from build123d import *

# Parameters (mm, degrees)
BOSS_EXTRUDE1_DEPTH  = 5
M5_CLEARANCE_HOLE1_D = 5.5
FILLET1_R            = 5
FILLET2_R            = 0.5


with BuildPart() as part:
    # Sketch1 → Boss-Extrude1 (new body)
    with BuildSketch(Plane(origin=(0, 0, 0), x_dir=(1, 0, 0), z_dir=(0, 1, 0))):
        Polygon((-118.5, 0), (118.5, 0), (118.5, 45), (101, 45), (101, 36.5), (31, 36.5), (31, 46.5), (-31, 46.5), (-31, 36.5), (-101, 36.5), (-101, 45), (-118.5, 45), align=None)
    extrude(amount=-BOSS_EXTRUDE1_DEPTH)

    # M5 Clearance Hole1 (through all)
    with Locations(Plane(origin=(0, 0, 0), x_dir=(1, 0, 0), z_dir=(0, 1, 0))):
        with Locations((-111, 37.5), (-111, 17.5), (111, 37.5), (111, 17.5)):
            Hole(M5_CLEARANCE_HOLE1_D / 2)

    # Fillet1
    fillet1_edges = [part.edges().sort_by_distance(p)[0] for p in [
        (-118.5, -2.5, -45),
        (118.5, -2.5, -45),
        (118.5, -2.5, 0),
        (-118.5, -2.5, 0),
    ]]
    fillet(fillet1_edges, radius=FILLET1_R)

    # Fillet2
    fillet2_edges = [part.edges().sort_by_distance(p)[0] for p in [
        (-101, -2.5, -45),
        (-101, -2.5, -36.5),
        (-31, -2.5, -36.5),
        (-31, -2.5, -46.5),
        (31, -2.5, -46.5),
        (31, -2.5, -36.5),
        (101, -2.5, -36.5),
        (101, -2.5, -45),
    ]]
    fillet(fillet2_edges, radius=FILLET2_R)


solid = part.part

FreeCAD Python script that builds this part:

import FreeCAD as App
import Part
import Sketcher

V = App.Vector
Q = App.Units.Quantity


def edges_at(feature, points):
    """Names of the edges that pass closest to the given points."""
    edges = feature.Shape.Edges
    near = lambda p: min(range(len(edges)), key=lambda i: edges[i].distToShape(Part.Vertex(*p))[0])
    return sorted({f"Edge{near(p) + 1}" for p in points})

doc = App.newDocument("Part")
body = doc.addObject("PartDesign::Body", "Body")

# Sketch on XZ plane
sketch1 = doc.addObject("Sketcher::SketchObject", "Sketch")
body.addObject(sketch1)
sketch1.AttachmentSupport = (doc.XZ_Plane, [""])
sketch1.MapMode = "FlatFace"
sketch1.addGeometry([
    Part.LineSegment(V(-118, 0, 0), V(118, 0, 0)),  # 0
    Part.LineSegment(V(118, 0, 0), V(118, -45, 0)),  # 1
    Part.LineSegment(V(118, -45, 0), V(101, -45, 0)),  # 2
    Part.LineSegment(V(101, -45, 0), V(101, -36, 0)),  # 3
    Part.LineSegment(V(101, -36, 0), V(31, -36, 0)),  # 4
    Part.LineSegment(V(31, -36, 0), V(31, -46, 0)),  # 5
    Part.LineSegment(V(31, -46, 0), V(-31, -46, 0)),  # 6
    Part.LineSegment(V(-31, -46, 0), V(-31, -36, 0)),  # 7
    Part.LineSegment(V(-31, -36, 0), V(-101, -36, 0)),  # 8
    Part.LineSegment(V(-101, -36, 0), V(-101, -45, 0)),  # 9
    Part.LineSegment(V(-101, -45, 0), V(-118, -45, 0)),  # 10
    Part.LineSegment(V(-118, -45, 0), V(-118, 0, 0)),  # 11
], False)
sketch1.addConstraint([
    Sketcher.Constraint("Coincident", 0, 2, 1, 1),
    Sketcher.Constraint("Coincident", 1, 2, 2, 1),
    Sketcher.Constraint("Coincident", 2, 2, 3, 1),
    Sketcher.Constraint("Coincident", 3, 2, 4, 1),
    Sketcher.Constraint("Coincident", 4, 2, 5, 1),
    Sketcher.Constraint("Coincident", 5, 2, 6, 1),
    Sketcher.Constraint("Coincident", 6, 2, 7, 1),
    Sketcher.Constraint("Coincident", 7, 2, 8, 1),
    Sketcher.Constraint("Coincident", 8, 2, 9, 1),
    Sketcher.Constraint("Coincident", 9, 2, 10, 1),
    Sketcher.Constraint("Coincident", 10, 2, 11, 1),
    Sketcher.Constraint("Coincident", 11, 2, 0, 1),
    Sketcher.Constraint("Horizontal", 0),
    Sketcher.Constraint("Vertical", 1),
    Sketcher.Constraint("Horizontal", 2),
    Sketcher.Constraint("Vertical", 3),
    Sketcher.Constraint("Horizontal", 4),
    Sketcher.Constraint("Vertical", 5),
    Sketcher.Constraint("Horizontal", 6),
    Sketcher.Constraint("Vertical", 7),
    Sketcher.Constraint("Horizontal", 8),
    Sketcher.Constraint("Vertical", 9),
    Sketcher.Constraint("Horizontal", 10),
    Sketcher.Constraint("Vertical", 11),
    Sketcher.Constraint("Symmetric", 0, 2, 11, 2, -1, 1),
    Sketcher.Constraint("Symmetric", 4, 2, 7, 2, -2),
    Sketcher.Constraint("Symmetric", 2, 2, 9, 2, -2),
    Sketcher.Constraint("DistanceX", 0, 1, 0, 2, Q("237 mm")),
    Sketcher.Constraint("DistanceX", 4, 2, 4, 1, Q("70 mm")),
    Sketcher.Constraint("DistanceX", 6, 2, 6, 1, Q("62 mm")),
    Sketcher.Constraint("DistanceY", 1, 2, 1, 1, Q("45 mm")),
    Sketcher.Constraint("DistanceY", 5, 2, 5, 1, Q("10 mm")),
    Sketcher.Constraint("DistanceY", 3, 1, 3, 2, Q("8.5 mm")),
])
pad1 = doc.addObject("PartDesign::Pad", "Pad")
body.addObject(pad1)
pad1.Profile = sketch1
pad1.Length = 5

# Sketch on XZ plane
sketch2 = doc.addObject("Sketcher::SketchObject", "Sketch001")
body.addObject(sketch2)
sketch2.AttachmentSupport = (doc.XZ_Plane, [""])
sketch2.MapMode = "FlatFace"
sketch2.addGeometry([
    Part.Circle(V(-111, -37.5, 0), V(0, 0, 1), 2.8),
    Part.Circle(V(-111, -17.5, 0), V(0, 0, 1), 2.8),
    Part.Circle(V(111, -37.5, 0), V(0, 0, 1), 2.8),
    Part.Circle(V(111, -17.5, 0), V(0, 0, 1), 2.8),
], False)
sketch2.addConstraint([
    Sketcher.Constraint("Equal", 0, 1),
    Sketcher.Constraint("Equal", 1, 2),
    Sketcher.Constraint("Equal", 2, 3),
    Sketcher.Constraint("Symmetric", 0, 3, 2, 3, -2),
    Sketcher.Constraint("Symmetric", 1, 3, 3, 3, -2),
    Sketcher.Constraint("Vertical", 0, 3, 1, 3),
    Sketcher.Constraint("Diameter", 0, Q("5.5 mm")),
    Sketcher.Constraint("DistanceX", 0, 3, -1, 1, Q("111 mm")),
    Sketcher.Constraint("DistanceY", 0, 3, 1, 3, Q("20 mm")),
    Sketcher.Constraint("DistanceY", 0, 3, -1, 1, Q("37.5 mm")),
])
doc.recompute()
hole = doc.addObject("PartDesign::Hole", "Hole")
body.addObject(hole)
hole.Profile = sketch2
hole.ThreadType = "None"
hole.Diameter = 5.5
hole.DepthType = "ThroughAll"
hole.Reversed = True
doc.recompute()

fillet = doc.addObject("PartDesign::Fillet", "Fillet")
body.addObject(fillet)
fillet.Base = (hole, edges_at(hole, [
    (-118.5, -2.5, -45),
    (118.5, -2.5, -45),
    (118.5, -2.5, 0),
    (-118.5, -2.5, 0),
]))
fillet.Radius = 5
doc.recompute()

fillet2 = doc.addObject("PartDesign::Fillet", "Fillet001")
body.addObject(fillet2)
fillet2.Base = (fillet, edges_at(fillet, [
    (-101, -2.5, -45),
    (-101, -2.5, -36.5),
    (-31, -2.5, -36.5),
    (-31, -2.5, -46.5),
    (31, -2.5, -46.5),
    (31, -2.5, -36.5),
    (101, -2.5, -36.5),
    (101, -2.5, -45),
]))
fillet2.Radius = 0.5

doc.recompute()
